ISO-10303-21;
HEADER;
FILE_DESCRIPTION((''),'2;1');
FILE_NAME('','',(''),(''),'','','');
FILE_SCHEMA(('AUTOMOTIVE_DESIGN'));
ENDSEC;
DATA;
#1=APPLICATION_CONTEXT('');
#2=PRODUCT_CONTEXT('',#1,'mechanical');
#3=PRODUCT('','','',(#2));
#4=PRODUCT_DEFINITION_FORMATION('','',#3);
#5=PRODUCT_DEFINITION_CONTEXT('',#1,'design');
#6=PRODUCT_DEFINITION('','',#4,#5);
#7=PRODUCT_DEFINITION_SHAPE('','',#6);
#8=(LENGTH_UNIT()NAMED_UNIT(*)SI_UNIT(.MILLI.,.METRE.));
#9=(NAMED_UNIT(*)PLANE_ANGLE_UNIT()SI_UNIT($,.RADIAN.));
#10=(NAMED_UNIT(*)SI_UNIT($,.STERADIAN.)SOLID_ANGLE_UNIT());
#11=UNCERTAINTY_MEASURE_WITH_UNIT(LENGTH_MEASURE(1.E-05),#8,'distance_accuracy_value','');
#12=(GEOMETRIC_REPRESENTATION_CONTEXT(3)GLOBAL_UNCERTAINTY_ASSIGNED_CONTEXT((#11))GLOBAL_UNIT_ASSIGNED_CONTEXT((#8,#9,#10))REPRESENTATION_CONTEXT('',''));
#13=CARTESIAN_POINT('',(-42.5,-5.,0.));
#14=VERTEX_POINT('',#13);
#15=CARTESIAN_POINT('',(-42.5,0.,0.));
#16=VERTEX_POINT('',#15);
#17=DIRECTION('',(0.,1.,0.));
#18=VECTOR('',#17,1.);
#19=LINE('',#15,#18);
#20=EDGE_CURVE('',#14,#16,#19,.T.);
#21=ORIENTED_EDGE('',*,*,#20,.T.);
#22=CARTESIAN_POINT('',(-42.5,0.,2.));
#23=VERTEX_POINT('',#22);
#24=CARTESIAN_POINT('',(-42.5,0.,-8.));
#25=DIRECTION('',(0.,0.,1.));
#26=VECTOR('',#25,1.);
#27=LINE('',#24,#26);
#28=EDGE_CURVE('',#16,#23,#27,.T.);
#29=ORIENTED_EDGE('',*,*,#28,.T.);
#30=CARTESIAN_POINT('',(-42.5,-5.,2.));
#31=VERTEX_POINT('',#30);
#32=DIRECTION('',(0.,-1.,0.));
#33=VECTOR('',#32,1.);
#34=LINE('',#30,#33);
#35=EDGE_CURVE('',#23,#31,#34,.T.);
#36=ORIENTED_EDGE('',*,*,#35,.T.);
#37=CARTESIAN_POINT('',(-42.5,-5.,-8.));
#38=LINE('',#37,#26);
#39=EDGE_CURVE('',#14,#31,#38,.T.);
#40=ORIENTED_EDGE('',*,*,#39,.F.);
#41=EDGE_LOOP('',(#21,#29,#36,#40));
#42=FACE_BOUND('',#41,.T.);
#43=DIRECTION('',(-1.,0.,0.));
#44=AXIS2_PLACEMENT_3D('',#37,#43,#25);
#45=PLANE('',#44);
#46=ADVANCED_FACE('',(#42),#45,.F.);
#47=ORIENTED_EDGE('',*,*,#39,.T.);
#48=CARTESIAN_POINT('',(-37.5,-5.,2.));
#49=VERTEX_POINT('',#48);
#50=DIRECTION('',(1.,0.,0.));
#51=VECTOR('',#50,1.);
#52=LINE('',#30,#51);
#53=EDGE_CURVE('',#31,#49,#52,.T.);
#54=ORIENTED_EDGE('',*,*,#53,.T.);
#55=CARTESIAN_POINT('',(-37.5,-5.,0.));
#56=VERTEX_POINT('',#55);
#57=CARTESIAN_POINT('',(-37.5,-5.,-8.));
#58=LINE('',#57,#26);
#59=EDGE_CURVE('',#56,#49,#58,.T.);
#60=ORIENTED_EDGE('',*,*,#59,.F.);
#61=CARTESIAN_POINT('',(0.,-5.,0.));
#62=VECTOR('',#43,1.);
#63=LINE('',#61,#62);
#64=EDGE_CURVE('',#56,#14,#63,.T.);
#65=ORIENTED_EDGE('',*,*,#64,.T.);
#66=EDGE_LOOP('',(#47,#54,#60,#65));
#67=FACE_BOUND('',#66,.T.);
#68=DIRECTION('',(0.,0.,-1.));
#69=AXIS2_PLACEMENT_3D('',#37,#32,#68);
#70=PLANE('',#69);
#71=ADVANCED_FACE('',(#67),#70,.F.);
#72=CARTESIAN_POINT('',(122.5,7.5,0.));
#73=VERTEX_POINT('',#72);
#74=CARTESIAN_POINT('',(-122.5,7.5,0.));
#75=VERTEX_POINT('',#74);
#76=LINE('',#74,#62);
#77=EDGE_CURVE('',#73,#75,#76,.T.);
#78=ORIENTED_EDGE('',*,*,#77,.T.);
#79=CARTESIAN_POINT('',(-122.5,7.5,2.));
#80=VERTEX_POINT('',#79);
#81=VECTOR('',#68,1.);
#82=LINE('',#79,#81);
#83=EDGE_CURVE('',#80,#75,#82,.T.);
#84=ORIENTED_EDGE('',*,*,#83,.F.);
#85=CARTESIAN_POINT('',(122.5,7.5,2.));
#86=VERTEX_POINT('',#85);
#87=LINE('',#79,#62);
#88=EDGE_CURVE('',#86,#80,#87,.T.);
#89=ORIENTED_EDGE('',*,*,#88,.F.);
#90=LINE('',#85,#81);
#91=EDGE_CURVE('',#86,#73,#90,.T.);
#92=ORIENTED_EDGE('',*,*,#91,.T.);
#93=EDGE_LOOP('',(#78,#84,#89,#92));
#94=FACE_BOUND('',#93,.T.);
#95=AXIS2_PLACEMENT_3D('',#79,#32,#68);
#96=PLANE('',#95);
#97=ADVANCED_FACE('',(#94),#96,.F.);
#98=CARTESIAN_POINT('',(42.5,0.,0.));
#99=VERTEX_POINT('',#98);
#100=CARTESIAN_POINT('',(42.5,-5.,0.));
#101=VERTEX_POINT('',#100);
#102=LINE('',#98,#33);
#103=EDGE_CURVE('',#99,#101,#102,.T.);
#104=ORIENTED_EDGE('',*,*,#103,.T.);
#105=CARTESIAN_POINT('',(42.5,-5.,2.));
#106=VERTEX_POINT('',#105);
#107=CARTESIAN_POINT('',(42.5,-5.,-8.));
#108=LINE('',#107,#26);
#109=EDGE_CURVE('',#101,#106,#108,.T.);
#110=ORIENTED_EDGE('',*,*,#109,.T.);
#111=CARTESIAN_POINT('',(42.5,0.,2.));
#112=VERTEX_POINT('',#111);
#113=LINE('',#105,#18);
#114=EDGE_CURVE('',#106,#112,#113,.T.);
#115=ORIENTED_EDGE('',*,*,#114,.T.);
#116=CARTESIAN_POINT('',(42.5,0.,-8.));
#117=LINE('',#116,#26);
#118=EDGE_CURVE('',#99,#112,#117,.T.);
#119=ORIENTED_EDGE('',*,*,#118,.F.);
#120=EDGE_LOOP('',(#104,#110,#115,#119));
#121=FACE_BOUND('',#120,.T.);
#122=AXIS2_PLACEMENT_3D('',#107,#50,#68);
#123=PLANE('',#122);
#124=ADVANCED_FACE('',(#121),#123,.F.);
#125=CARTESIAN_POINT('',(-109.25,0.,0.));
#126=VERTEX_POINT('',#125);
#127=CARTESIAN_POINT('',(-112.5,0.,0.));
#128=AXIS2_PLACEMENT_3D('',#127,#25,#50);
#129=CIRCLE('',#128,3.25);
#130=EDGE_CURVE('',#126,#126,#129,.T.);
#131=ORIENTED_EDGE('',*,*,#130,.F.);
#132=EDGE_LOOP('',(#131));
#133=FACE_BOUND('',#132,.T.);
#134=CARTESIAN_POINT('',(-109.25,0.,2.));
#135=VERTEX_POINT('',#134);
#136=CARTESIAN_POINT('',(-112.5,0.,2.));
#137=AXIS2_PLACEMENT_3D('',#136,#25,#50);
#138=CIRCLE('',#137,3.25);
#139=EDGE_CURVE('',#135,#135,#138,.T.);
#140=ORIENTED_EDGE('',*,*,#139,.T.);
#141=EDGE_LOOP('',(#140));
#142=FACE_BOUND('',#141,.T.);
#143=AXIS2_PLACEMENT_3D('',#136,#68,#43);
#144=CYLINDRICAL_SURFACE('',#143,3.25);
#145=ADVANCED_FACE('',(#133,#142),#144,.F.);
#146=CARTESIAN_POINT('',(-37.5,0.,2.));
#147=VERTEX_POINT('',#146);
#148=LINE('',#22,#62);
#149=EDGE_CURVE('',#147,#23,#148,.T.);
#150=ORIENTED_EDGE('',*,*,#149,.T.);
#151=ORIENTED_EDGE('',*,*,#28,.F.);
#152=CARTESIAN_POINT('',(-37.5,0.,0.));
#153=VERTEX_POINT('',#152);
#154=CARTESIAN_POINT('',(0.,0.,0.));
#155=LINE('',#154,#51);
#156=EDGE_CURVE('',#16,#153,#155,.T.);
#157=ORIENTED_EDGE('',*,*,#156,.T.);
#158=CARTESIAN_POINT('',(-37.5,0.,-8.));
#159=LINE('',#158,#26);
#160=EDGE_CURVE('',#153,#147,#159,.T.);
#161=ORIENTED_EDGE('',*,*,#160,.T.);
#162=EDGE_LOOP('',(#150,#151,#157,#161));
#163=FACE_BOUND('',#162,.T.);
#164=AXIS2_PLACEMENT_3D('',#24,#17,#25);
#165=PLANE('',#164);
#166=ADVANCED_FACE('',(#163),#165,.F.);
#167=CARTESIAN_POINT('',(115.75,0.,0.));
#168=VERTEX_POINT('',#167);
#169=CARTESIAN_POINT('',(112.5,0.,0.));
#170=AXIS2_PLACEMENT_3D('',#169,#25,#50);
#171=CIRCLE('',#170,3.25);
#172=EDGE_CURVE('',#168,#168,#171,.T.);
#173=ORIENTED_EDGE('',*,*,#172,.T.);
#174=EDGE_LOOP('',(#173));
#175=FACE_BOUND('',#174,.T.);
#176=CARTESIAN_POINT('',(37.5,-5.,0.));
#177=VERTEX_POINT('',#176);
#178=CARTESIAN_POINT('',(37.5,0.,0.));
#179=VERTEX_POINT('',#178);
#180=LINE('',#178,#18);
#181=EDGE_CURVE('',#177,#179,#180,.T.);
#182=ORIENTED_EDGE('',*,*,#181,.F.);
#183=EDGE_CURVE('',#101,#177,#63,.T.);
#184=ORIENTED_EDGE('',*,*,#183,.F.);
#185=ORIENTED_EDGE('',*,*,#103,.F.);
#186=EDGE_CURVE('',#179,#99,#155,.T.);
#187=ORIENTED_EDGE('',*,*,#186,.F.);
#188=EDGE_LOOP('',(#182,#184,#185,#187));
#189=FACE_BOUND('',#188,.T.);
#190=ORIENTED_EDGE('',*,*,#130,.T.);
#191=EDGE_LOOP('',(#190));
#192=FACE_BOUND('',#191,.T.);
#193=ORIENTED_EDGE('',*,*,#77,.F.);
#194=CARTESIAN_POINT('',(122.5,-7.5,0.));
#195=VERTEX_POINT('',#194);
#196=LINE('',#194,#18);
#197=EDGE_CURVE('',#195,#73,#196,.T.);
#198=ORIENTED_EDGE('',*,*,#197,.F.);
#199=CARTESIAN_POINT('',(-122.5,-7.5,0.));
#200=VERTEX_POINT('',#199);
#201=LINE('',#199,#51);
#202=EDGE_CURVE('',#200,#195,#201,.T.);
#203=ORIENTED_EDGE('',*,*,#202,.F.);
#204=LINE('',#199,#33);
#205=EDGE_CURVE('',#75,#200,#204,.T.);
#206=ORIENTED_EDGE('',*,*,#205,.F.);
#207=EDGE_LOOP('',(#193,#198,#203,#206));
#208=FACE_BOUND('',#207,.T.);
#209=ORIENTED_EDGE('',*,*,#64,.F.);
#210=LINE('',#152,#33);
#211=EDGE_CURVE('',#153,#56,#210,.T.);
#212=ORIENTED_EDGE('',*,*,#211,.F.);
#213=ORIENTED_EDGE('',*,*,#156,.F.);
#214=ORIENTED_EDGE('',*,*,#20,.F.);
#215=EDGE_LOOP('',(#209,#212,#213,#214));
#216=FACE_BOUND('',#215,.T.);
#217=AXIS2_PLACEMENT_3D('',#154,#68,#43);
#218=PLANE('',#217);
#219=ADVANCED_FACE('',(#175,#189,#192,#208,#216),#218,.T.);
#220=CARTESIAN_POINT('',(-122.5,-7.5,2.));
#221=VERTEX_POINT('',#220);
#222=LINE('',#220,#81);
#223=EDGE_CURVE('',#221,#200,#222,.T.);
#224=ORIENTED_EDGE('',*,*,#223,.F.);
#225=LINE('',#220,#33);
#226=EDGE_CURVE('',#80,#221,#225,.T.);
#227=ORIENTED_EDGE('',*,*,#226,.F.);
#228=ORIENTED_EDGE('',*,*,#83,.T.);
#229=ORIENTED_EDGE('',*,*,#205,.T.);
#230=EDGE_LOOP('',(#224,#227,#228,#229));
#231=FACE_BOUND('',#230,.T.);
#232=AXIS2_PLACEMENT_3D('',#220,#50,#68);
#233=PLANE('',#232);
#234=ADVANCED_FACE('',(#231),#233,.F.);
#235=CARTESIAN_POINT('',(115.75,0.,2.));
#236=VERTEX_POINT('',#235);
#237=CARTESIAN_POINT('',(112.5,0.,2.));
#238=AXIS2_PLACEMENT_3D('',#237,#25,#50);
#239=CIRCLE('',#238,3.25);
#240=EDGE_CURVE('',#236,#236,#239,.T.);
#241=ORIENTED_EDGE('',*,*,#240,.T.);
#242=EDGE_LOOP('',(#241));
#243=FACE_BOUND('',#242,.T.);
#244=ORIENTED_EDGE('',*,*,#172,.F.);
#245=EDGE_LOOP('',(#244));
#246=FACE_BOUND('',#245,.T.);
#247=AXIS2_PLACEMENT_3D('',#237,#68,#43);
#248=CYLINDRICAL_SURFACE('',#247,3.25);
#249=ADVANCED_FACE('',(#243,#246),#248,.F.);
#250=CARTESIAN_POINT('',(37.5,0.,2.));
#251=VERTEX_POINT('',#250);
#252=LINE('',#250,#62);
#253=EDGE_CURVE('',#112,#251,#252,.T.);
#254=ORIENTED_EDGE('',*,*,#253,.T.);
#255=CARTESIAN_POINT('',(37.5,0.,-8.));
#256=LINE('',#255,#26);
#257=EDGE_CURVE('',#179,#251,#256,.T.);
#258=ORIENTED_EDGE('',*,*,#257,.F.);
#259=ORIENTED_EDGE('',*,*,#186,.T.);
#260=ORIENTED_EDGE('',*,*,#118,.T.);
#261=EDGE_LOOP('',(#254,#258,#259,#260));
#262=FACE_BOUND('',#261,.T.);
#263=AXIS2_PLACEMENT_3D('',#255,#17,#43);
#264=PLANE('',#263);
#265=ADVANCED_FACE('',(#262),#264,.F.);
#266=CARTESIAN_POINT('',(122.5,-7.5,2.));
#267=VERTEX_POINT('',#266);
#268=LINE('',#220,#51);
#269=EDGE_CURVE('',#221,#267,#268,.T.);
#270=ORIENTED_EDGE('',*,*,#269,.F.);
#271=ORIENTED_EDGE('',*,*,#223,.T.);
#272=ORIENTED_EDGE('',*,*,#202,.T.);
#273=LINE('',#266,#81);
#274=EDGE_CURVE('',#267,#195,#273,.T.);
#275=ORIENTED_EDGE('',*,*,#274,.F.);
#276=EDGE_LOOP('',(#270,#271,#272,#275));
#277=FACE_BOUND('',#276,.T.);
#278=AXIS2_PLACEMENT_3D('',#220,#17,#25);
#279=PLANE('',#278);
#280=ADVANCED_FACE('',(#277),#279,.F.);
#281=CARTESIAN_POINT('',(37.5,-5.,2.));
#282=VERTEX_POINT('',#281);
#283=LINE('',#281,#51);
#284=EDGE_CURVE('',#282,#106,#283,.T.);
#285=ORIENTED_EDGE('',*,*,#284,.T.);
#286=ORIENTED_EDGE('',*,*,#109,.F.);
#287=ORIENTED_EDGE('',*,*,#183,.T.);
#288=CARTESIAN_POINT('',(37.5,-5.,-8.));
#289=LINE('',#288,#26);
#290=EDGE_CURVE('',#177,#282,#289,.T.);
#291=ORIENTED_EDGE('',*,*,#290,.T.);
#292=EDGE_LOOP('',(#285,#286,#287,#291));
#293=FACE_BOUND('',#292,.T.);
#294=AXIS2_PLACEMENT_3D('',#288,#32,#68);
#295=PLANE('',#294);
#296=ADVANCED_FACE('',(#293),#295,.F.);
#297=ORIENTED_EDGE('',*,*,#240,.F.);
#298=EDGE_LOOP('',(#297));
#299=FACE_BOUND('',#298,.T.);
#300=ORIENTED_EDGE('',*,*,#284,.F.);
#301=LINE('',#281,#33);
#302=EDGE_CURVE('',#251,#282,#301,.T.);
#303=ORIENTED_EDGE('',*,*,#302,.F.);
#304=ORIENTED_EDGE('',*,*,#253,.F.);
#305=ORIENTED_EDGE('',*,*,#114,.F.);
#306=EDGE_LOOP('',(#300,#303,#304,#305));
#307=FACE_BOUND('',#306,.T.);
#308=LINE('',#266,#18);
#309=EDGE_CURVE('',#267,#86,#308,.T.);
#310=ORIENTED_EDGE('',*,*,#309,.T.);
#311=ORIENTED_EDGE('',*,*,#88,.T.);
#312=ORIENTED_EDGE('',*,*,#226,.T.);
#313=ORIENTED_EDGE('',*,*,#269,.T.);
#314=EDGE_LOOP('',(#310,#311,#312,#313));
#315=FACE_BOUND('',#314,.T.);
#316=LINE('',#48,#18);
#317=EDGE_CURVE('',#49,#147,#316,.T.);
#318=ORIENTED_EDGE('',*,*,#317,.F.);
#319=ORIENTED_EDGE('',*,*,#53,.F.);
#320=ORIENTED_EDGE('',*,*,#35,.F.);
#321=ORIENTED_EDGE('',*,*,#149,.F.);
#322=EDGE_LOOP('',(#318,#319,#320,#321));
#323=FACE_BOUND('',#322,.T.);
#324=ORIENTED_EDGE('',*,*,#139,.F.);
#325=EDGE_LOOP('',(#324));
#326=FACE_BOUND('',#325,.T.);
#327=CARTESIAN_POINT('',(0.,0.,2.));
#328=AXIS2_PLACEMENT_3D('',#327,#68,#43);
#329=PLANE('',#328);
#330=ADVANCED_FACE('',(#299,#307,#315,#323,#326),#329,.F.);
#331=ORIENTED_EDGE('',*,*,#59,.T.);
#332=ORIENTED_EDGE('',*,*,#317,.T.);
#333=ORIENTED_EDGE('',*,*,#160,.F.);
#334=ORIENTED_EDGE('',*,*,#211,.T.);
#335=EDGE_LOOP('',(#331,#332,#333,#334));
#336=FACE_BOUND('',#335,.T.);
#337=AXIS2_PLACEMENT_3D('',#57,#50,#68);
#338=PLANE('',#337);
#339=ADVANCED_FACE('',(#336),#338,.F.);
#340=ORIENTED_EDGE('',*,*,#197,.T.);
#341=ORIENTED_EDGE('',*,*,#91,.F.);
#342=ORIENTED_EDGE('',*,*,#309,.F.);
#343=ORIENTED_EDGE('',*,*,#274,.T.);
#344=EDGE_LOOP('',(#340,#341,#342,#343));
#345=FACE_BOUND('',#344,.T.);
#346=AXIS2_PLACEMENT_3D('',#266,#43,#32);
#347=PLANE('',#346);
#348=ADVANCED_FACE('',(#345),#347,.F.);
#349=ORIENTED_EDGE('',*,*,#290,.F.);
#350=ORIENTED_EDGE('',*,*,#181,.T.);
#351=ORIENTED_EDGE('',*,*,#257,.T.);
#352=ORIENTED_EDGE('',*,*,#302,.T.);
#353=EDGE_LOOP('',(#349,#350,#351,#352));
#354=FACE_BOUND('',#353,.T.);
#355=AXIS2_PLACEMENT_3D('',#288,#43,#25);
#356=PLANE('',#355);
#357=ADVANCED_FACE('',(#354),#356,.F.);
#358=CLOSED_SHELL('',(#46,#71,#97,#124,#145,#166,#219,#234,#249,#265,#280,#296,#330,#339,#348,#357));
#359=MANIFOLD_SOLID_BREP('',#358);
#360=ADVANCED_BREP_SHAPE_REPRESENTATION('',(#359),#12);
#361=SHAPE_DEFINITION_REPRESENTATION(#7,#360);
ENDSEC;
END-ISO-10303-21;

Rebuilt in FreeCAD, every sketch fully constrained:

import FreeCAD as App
import Part
import Sketcher
from FreeCAD import Vector

doc = App.newDocument("Part")
params = doc.addObject("Spreadsheet::Sheet", "Params")
for row, (alias, value) in enumerate([
    ("sketch1_diameter", "6.5 mm"),
    ("sketch1_width", "245 mm"),
    ("sketch1_height", "15 mm"),
    ("pad1_length", "2 mm"),
    ("sketch2_width", "5 mm"),
    ("pocket1_length", "10 mm"),
], start=1):
    params.set(f"A{row}", alias)
    params.set(f"B{row}", "=" + value)
    params.setAlias(f"B{row}", alias)

body = doc.addObject("PartDesign::Body", "Body")

# Sketch on XY plane
sketch1 = body.newObject("Sketcher::SketchObject", "Sketch")
sketch1.AttachmentSupport = (doc.getObject("XY_Plane"), [""])
sketch1.MapMode = "FlatFace"
sketch1.addGeometry(Part.LineSegment(Vector(-122.5, 7.5, 0), Vector(-122.5, -7.5, 0)), False)
sketch1.addGeometry(Part.LineSegment(Vector(-122.5, -7.5, 0), Vector(122.5, -7.5, 0)), False)
sketch1.addGeometry(Part.LineSegment(Vector(122.5, -7.5, 0), Vector(122.5, 7.5, 0)), False)
sketch1.addGeometry(Part.LineSegment(Vector(122.5, 7.5, 0), Vector(-122.5, 7.5, 0)), False)
sketch1.addGeometry(Part.Circle(Vector(-112.5, 0, 0), Vector(0, 0, 1), 3.25), False)
sketch1.addGeometry(Part.Circle(Vector(112.5, 0, 0), Vector(0, 0, 1), 3.25), False)
sketch1.addConstraint(Sketcher.Constraint("Coincident", 0, 2, 1, 1))
sketch1.addConstraint(Sketcher.Constraint("Coincident", 1, 2, 2, 1))
sketch1.addConstraint(Sketcher.Constraint("Coincident", 2, 2, 3, 1))
sketch1.addConstraint(Sketcher.Constraint("Coincident", 3, 2, 0, 1))
sketch1.addConstraint(Sketcher.Constraint("Vertical", 0))
sketch1.addConstraint(Sketcher.Constraint("Horizontal", 1))
sketch1.addConstraint(Sketcher.Constraint("Vertical", 2))
sketch1.addConstraint(Sketcher.Constraint("Horizontal", 3))
sketch1.addConstraint(Sketcher.Constraint("Equal", 4, 5))
sketch1.addConstraint(Sketcher.Constraint("Symmetric", 4, 3, 5, 3, -1, 1))
sketch1.addConstraint(Sketcher.Constraint("Symmetric", 0, 2, 2, 2, -1, 1))
sketch1.addConstraint(Sketcher.Constraint("PointOnObject", 4, 3, -1))
sketch1.addConstraint(Sketcher.Constraint("Diameter", 4, 6.5))
sketch1.addConstraint(Sketcher.Constraint("DistanceX", 1, 1, 1, 2, 245.0))
sketch1.addConstraint(Sketcher.Constraint("DistanceY", 0, 2, 0, 1, 15.0))
sketch1.addConstraint(Sketcher.Constraint("DistanceX", 4, 3, 5, 3, 225.0))
sketch1.setExpression("Constraints[12]", "Params.sketch1_diameter")
sketch1.setExpression("Constraints[13]", "Params.sketch1_width")
sketch1.setExpression("Constraints[14]", "Params.sketch1_height")
pad1 = body.newObject("PartDesign::Pad", "Pad")
pad1.Profile = sketch1
pad1.setExpression("Length", "Params.pad1_length")

# Sketch on XY plane
sketch2 = body.newObject("Sketcher::SketchObject", "Sketch001")
sketch2.AttachmentSupport = (doc.getObject("XY_Plane"), [""])
sketch2.MapMode = "FlatFace"
sketch2.AttachmentOffset = App.Placement(Vector(0, 0, 2), App.Rotation())
sketch2.addGeometry(Part.LineSegment(Vector(-42.5, 0, 0), Vector(-42.5, -5, 0)), False)
sketch2.addGeometry(Part.LineSegment(Vector(-42.5, -5, 0), Vector(-37.5, -5, 0)), False)
sketch2.addGeometry(Part.LineSegment(Vector(-37.5, -5, 0), Vector(-37.5, 0, 0)), False)
sketch2.addGeometry(Part.LineSegment(Vector(-37.5, 0, 0), Vector(-42.5, 0, 0)), False)
sketch2.addGeometry(Part.LineSegment(Vector(37.5, 0, 0), Vector(37.5, -5, 0)), False)
sketch2.addGeometry(Part.LineSegment(Vector(37.5, -5, 0), Vector(42.5, -5, 0)), False)
sketch2.addGeometry(Part.LineSegment(Vector(42.5, -5, 0), Vector(42.5, 0, 0)), False)
sketch2.addGeometry(Part.LineSegment(Vector(42.5, 0, 0), Vector(37.5, 0, 0)), False)
sketch2.addConstraint(Sketcher.Constraint("Coincident", 0, 2, 1, 1))
sketch2.addConstraint(Sketcher.Constraint("Coincident", 1, 2, 2, 1))
sketch2.addConstraint(Sketcher.Constraint("Coincident", 2, 2, 3, 1))
sketch2.addConstraint(Sketcher.Constraint("Coincident", 3, 2, 0, 1))
sketch2.addConstraint(Sketcher.Constraint("Coincident", 4, 2, 5, 1))
sketch2.addConstraint(Sketcher.Constraint("Coincident", 5, 2, 6, 1))
sketch2.addConstraint(Sketcher.Constraint("Coincident", 6, 2, 7, 1))
sketch2.addConstraint(Sketcher.Constraint("Coincident", 7, 2, 4, 1))
sketch2.addConstraint(Sketcher.Constraint("Vertical", 0))
sketch2.addConstraint(Sketcher.Constraint("Horizontal", 1))
sketch2.addConstraint(Sketcher.Constraint("Vertical", 2))
sketch2.addConstraint(Sketcher.Constraint("Horizontal", 3))
sketch2.addConstraint(Sketcher.Constraint("Vertical", 4))
sketch2.addConstraint(Sketcher.Constraint("Horizontal", 5))
sketch2.addConstraint(Sketcher.Constraint("Vertical", 6))
sketch2.addConstraint(Sketcher.Constraint("Horizontal", 7))
sketch2.addConstraint(Sketcher.Constraint("Symmetric", 3, 2, 6, 2, -1, 1))
sketch2.addConstraint(Sketcher.Constraint("Symmetric", 1, 2, 4, 2, -2))
sketch2.addConstraint(Sketcher.Constraint("PointOnObject", 2, 2, -1))
sketch2.addConstraint(Sketcher.Constraint("Equal", 7, 0))
sketch2.addConstraint(Sketcher.Constraint("DistanceX", 1, 1, 1, 2, 5.0))
sketch2.addConstraint(Sketcher.Constraint("DistanceX", 1, 2, 4, 2, 75.0))
sketch2.setExpression("Constraints[20]", "Params.sketch2_width")
pocket1 = body.newObject("PartDesign::Pocket", "Pocket")
pocket1.Profile = sketch2
pocket1.setExpression("Length", "Params.pocket1_length")

doc.recompute()
